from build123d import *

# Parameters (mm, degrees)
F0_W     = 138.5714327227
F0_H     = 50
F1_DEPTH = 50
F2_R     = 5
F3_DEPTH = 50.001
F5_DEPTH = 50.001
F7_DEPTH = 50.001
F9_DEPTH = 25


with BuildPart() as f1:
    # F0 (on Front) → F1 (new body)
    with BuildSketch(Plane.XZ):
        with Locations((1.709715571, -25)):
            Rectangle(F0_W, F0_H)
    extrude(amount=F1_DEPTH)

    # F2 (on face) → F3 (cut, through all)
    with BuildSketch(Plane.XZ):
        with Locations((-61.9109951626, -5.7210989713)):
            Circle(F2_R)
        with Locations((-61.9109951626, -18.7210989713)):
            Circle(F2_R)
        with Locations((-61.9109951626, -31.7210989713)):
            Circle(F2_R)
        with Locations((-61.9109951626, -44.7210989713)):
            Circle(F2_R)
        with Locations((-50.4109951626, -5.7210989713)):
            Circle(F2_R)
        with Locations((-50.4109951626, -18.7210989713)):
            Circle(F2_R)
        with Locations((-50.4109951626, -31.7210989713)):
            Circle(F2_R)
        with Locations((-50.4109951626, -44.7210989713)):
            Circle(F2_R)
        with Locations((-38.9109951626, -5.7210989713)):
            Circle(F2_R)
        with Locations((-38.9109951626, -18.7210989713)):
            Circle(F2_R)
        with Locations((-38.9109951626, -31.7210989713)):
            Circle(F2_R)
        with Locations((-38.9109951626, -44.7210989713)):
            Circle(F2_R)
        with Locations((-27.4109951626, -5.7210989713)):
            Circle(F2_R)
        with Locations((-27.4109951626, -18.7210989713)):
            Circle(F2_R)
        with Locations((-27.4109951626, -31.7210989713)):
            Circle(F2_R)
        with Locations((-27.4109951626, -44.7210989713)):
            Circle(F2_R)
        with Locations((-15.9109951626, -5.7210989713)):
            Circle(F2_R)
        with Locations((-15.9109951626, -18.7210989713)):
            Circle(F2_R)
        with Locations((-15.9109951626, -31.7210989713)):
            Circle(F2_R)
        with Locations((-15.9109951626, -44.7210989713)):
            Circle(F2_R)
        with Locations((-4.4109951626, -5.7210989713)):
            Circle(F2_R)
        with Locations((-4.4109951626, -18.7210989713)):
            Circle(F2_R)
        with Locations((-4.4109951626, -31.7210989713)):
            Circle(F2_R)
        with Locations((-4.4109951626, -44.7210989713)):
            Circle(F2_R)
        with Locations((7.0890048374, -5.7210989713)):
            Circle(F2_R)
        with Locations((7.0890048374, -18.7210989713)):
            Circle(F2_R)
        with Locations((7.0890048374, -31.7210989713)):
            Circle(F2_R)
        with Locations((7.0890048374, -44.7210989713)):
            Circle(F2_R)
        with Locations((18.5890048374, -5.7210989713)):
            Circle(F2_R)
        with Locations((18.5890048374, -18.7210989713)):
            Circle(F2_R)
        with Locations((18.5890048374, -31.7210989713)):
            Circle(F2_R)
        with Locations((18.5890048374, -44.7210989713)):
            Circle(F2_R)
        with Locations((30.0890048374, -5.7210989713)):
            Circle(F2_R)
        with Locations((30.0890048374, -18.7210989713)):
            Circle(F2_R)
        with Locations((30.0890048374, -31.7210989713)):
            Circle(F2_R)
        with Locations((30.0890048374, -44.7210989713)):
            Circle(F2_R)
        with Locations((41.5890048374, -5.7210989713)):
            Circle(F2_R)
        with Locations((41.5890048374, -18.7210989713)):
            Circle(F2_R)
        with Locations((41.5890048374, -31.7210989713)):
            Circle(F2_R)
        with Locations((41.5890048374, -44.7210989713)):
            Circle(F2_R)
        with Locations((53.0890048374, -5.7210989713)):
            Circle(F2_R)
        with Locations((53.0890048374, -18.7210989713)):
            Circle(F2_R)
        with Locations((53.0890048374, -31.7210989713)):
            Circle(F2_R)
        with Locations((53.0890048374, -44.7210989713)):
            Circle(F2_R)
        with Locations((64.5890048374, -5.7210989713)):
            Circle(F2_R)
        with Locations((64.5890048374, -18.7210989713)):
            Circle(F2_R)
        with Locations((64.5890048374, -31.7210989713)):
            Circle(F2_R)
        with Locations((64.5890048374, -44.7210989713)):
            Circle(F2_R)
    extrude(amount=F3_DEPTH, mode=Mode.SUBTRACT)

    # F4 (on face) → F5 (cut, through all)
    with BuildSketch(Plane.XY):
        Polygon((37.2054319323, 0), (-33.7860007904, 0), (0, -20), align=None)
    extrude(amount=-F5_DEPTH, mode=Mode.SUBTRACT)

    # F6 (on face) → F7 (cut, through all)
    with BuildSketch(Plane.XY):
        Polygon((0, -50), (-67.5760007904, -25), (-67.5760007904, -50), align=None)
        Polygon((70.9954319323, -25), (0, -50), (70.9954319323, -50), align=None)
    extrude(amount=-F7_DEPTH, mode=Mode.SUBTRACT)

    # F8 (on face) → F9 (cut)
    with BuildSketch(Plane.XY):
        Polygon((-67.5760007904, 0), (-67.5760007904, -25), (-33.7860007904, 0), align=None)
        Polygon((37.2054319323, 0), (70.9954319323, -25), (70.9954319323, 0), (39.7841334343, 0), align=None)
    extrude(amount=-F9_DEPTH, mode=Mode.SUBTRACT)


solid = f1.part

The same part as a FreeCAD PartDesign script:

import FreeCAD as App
import Part
import Sketcher
from FreeCAD import Vector


def add_polygon(sketch, points):
    """Adds a closed chain of lines whose ends are joined by coincident constraints."""
    first, n = sketch.GeometryCount, len(points)
    for a, b in zip(points, points[1:] + points[:1]):
        sketch.addGeometry(Part.LineSegment(App.Vector(*a, 0), App.Vector(*b, 0)), False)
    for i in range(n):
        sketch.addConstraint(Sketcher.Constraint("Coincident", first + i, 2, first + (i + 1) % n, 1))

doc = App.newDocument("Part")
params = doc.addObject("Spreadsheet::Sheet", "Params")
for row, (alias, value) in enumerate([
    ("sketch1_height", "50 mm"),
    ("pad1_length", "50 mm"),
    ("sketch2_diameter", "10 mm"),
    ("sketch4_height", "25 mm"),
    ("sketch5_height", "25 mm"),
    ("sketch5_width", "33.79 mm"),
    ("pocket4_length", "25 mm"),
], start=1):
    params.set(f"A{row}", alias)
    params.set(f"B{row}", "=" + value)
    params.setAlias(f"B{row}", alias)

body = doc.addObject("PartDesign::Body", "Body")

sketch1 = doc.addObject("Sketcher::SketchObject", "Sketch")
body.addObject(sketch1)
sketch1.AttachmentSupport = (doc.XZ_Plane, [""])
sketch1.MapMode = "FlatFace"
add_polygon(sketch1, [(-68, 0), (-68, -50), (71, -50), (71, 0)])
sketch1.addConstraint(Sketcher.Constraint("Vertical", 0))
sketch1.addConstraint(Sketcher.Constraint("Horizontal", 1))
sketch1.addConstraint(Sketcher.Constraint("Vertical", 2))
sketch1.addConstraint(Sketcher.Constraint("Horizontal", 3))
sketch1.addConstraint(Sketcher.Constraint("PointOnObject", 2, 2, -1))
sketch1.addConstraint(Sketcher.Constraint("DistanceY", 0, 2, 0, 1, 50.0))
sketch1.addConstraint(Sketcher.Constraint("DistanceX", 0, 2, -1, 1, 67.576001))
sketch1.addConstraint(Sketcher.Constraint("DistanceX", 1, 1, 1, 2, 138.571433))
sketch1.setExpression("Constraints[9]", "Params.sketch1_height")
pad1 = doc.addObject("PartDesign::Pad", "Pad")
body.addObject(pad1)
pad1.Profile = sketch1
pad1.setExpression("Length", "Params.pad1_length")

sketch2 = doc.addObject("Sketcher::SketchObject", "Sketch001")
body.addObject(sketch2)
sketch2.AttachmentSupport = (doc.XZ_Plane, [""])
sketch2.MapMode = "FlatFace"
sketch2.addGeometry(Part.Circle(Vector(-62, -6, 0), Vector(0, 0, 1), 5), False)
sketch2.addGeometry(Part.Circle(Vector(-62, -19, 0), Vector(0, 0, 1), 5), False)
sketch2.addGeometry(Part.Circle(Vector(-62, -32, 0), Vector(0, 0, 1), 5), False)
sketch2.addGeometry(Part.Circle(Vector(-62, -45, 0), Vector(0, 0, 1), 5), False)
sketch2.addGeometry(Part.Circle(Vector(-50, -6, 0), Vector(0, 0, 1), 5), False)
sketch2.addGeometry(Part.Circle(Vector(-50, -19, 0), Vector(0, 0, 1), 5), False)
sketch2.addGeometry(Part.Circle(Vector(-50, -32, 0), Vector(0, 0, 1), 5), False)
sketch2.addGeometry(Part.Circle(Vector(-50, -45, 0), Vector(0, 0, 1), 5), False)
sketch2.addGeometry(Part.Circle(Vector(-39, -6, 0), Vector(0, 0, 1), 5), False)
sketch2.addGeometry(Part.Circle(Vector(-39, -19, 0), Vector(0, 0, 1), 5), False)
sketch2.addGeometry(Part.Circle(Vector(-39, -32, 0), Vector(0, 0, 1), 5), False)
sketch2.addGeometry(Part.Circle(Vector(-39, -45, 0), Vector(0, 0, 1), 5), False)
sketch2.addGeometry(Part.Circle(Vector(-27, -6, 0), Vector(0, 0, 1), 5), False)
sketch2.addGeometry(Part.Circle(Vector(-27, -19, 0), Vector(0, 0, 1), 5), False)
sketch2.addGeometry(Part.Circle(Vector(-27, -32, 0), Vector(0, 0, 1), 5), False)
sketch2.addGeometry(Part.Circle(Vector(-27, -45, 0), Vector(0, 0, 1), 5), False)
sketch2.addGeometry(Part.Circle(Vector(-16, -6, 0), Vector(0, 0, 1), 5), False)
sketch2.addGeometry(Part.Circle(Vector(-16, -19, 0), Vector(0, 0, 1), 5), False)
sketch2.addGeometry(Part.Circle(Vector(-16, -32, 0), Vector(0, 0, 1), 5), False)
sketch2.addGeometry(Part.Circle(Vector(-16, -45, 0), Vector(0, 0, 1), 5), False)
sketch2.addGeometry(Part.Circle(Vector(-4, -6, 0), Vector(0, 0, 1), 5), False)
sketch2.addGeometry(Part.Circle(Vector(-4, -19, 0), Vector(0, 0, 1), 5), False)
sketch2.addGeometry(Part.Circle(Vector(-4, -32, 0), Vector(0, 0, 1), 5), False)
sketch2.addGeometry(Part.Circle(Vector(-4, -45, 0), Vector(0, 0, 1), 5), False)
sketch2.addGeometry(Part.Circle(Vector(7, -6, 0), Vector(0, 0, 1), 5), False)
sketch2.addGeometry(Part.Circle(Vector(7, -19, 0), Vector(0, 0, 1), 5), False)
sketch2.addGeometry(Part.Circle(Vector(7, -32, 0), Vector(0, 0, 1), 5), False)
sketch2.addGeometry(Part.Circle(Vector(7, -45, 0), Vector(0, 0, 1), 5), False)
sketch2.addGeometry(Part.Circle(Vector(19, -6, 0), Vector(0, 0, 1), 5), False)
sketch2.addGeometry(Part.Circle(Vector(19, -19, 0), Vector(0, 0, 1), 5), False)
sketch2.addGeometry(Part.Circle(Vector(19, -32, 0), Vector(0, 0, 1), 5), False)
sketch2.addGeometry(Part.Circle(Vector(19, -45, 0), Vector(0, 0, 1), 5), False)
sketch2.addGeometry(Part.Circle(Vector(30, -6, 0), Vector(0, 0, 1), 5), False)
sketch2.addGeometry(Part.Circle(Vector(30, -19, 0), Vector(0, 0, 1), 5), False)
sketch2.addGeometry(Part.Circle(Vector(30, -32, 0), Vector(0, 0, 1), 5), False)
sketch2.addGeometry(Part.Circle(Vector(30, -45, 0), Vector(0, 0, 1), 5), False)
sketch2.addGeometry(Part.Circle(Vector(42, -6, 0), Vector(0, 0, 1), 5), False)
sketch2.addGeometry(Part.Circle(Vector(42, -19, 0), Vector(0, 0, 1), 5), False)
sketch2.addGeometry(Part.Circle(Vector(42, -32, 0), Vector(0, 0, 1), 5), False)
sketch2.addGeometry(Part.Circle(Vector(42, -45, 0), Vector(0, 0, 1), 5), False)
sketch2.addGeometry(Part.Circle(Vector(53, -6, 0), Vector(0, 0, 1), 5), False)
sketch2.addGeometry(Part.Circle(Vector(53, -19, 0), Vector(0, 0, 1), 5), False)
sketch2.addGeometry(Part.Circle(Vector(53, -32, 0), Vector(0, 0, 1), 5), False)
sketch2.addGeometry(Part.Circle(Vector(53, -45, 0), Vector(0, 0, 1), 5), False)
sketch2.addGeometry(Part.Circle(Vector(65, -6, 0), Vector(0, 0, 1), 5), False)
sketch2.addGeometry(Part.Circle(Vector(65, -19, 0), Vector(0, 0, 1), 5), False)
sketch2.addGeometry(Part.Circle(Vector(65, -32, 0), Vector(0, 0, 1), 5), False)
sketch2.addGeometry(Part.Circle(Vector(65, -45, 0), Vector(0, 0, 1), 5), False)
sketch2.addConstraint(Sketcher.Constraint("Equal", 0, 1))
sketch2.addConstraint(Sketcher.Constraint("Equal", 1, 2))
sketch2.addConstraint(Sketcher.Constraint("Equal", 2, 3))
sketch2.addConstraint(Sketcher.Constraint("Equal", 3, 4))
sketch2.addConstraint(Sketcher.Constraint("Equal", 4, 5))
sketch2.addConstraint(Sketcher.Constraint("Equal", 5, 6))
sketch2.addConstraint(Sketcher.Constraint("Equal", 6, 7))
sketch2.addConstraint(Sketcher.Constraint("Equal", 7, 8))
sketch2.addConstraint(Sketcher.Constraint("Equal", 8, 9))
sketch2.addConstraint(Sketcher.Constraint("Equal", 9, 10))
sketch2.addConstraint(Sketcher.Constraint("Equal", 10, 11))
sketch2.addConstraint(Sketcher.Constraint("Equal", 11, 12))
sketch2.addConstraint(Sketcher.Constraint("Equal", 12, 13))
sketch2.addConstraint(Sketcher.Constraint("Equal", 13, 14))
sketch2.addConstraint(Sketcher.Constraint("Equal", 14, 15))
sketch2.addConstraint(Sketcher.Constraint("Equal", 15, 16))
sketch2.addConstraint(Sketcher.Constraint("Equal", 16, 17))
sketch2.addConstraint(Sketcher.Constraint("Equal", 17, 18))
sketch2.addConstraint(Sketcher.Constraint("Equal", 18, 19))
sketch2.addConstraint(Sketcher.Constraint("Equal", 19, 20))
sketch2.addConstraint(Sketcher.Constraint("Equal", 20, 21))
sketch2.addConstraint(Sketcher.Constraint("Equal", 21, 22))
sketch2.addConstraint(Sketcher.Constraint("Equal", 22, 23))
sketch2.addConstraint(Sketcher.Constraint("Equal", 23, 24))
sketch2.addConstraint(Sketcher.Constraint("Equal", 24, 25))
sketch2.addConstraint(Sketcher.Constraint("Equal", 25, 26))
sketch2.addConstraint(Sketcher.Constraint("Equal", 26, 27))
sketch2.addConstraint(Sketcher.Constraint("Equal", 27, 28))
sketch2.addConstraint(Sketcher.Constraint("Equal", 28, 29))
sketch2.addConstraint(Sketcher.Constraint("Equal", 29, 30))
sketch2.addConstraint(Sketcher.Constraint("Equal", 30, 31))
sketch2.addConstraint(Sketcher.Constraint("Equal", 31, 32))
sketch2.addConstraint(Sketcher.Constraint("Equal", 32, 33))
sketch2.addConstraint(Sketcher.Constraint("Equal", 33, 34))
sketch2.addConstraint(Sketcher.Constraint("Equal", 34, 35))
sketch2.addConstraint(Sketcher.Constraint("Equal", 35, 36))
sketch2.addConstraint(Sketcher.Constraint("Equal", 36, 37))
sketch2.addConstraint(Sketcher.Constraint("Equal", 37, 38))
sketch2.addConstraint(Sketcher.Constraint("Equal", 38, 39))
sketch2.addConstraint(Sketcher.Constraint("Equal", 39, 40))
sketch2.addConstraint(Sketcher.Constraint("Equal", 40, 41))
sketch2.addConstraint(Sketcher.Constraint("Equal", 41, 42))
sketch2.addConstraint(Sketcher.Constraint("Equal", 42, 43))
sketch2.addConstraint(Sketcher.Constraint("Equal", 43, 44))
sketch2.addConstraint(Sketcher.Constraint("Equal", 44, 45))
sketch2.addConstraint(Sketcher.Constraint("Equal", 45, 46))
sketch2.addConstraint(Sketcher.Constraint("Equal", 46, 47))
sketch2.addConstraint(Sketcher.Constraint("Horizontal", 0, 3, 4, 3))
sketch2.addConstraint(Sketcher.Constraint("Horizontal", 1, 3, 5, 3))
sketch2.addConstraint(Sketcher.Constraint("Horizontal", 2, 3, 6, 3))
sketch2.addConstraint(Sketcher.Constraint("Horizontal", 3, 3, 7, 3))
sketch2.addConstraint(Sketcher.Constraint("Horizontal", 4, 3, 8, 3))
sketch2.addConstraint(Sketcher.Constraint("Horizontal", 5, 3, 9, 3))
sketch2.addConstraint(Sketcher.Constraint("Horizontal", 6, 3, 10, 3))
sketch2.addConstraint(Sketcher.Constraint("Horizontal", 7, 3, 11, 3))
sketch2.addConstraint(Sketcher.Constraint("Horizontal", 8, 3, 12, 3))
sketch2.addConstraint(Sketcher.Constraint("Horizontal", 9, 3, 13, 3))
sketch2.addConstraint(Sketcher.Constraint("Horizontal", 10, 3, 14, 3))
sketch2.addConstraint(Sketcher.Constraint("Horizontal", 11, 3, 15, 3))
sketch2.addConstraint(Sketcher.Constraint("Horizontal", 12, 3, 16, 3))
sketch2.addConstraint(Sketcher.Constraint("Horizontal", 13, 3, 17, 3))
sketch2.addConstraint(Sketcher.Constraint("Horizontal", 14, 3, 18, 3))
sketch2.addConstraint(Sketcher.Constraint("Horizontal", 15, 3, 19, 3))
sketch2.addConstraint(Sketcher.Constraint("Horizontal", 16, 3, 20, 3))
sketch2.addConstraint(Sketcher.Constraint("Horizontal", 17, 3, 21, 3))
sketch2.addConstraint(Sketcher.Constraint("Horizontal", 18, 3, 22, 3))
sketch2.addConstraint(Sketcher.Constraint("Horizontal", 19, 3, 23, 3))
sketch2.addConstraint(Sketcher.Constraint("Horizontal", 20, 3, 24, 3))
sketch2.addConstraint(Sketcher.Constraint("Horizontal", 21, 3, 25, 3))
sketch2.addConstraint(Sketcher.Constraint("Horizontal", 22, 3, 26, 3))
sketch2.addConstraint(Sketcher.Constraint("Horizontal", 23, 3, 27, 3))
sketch2.addConstraint(Sketcher.Constraint("Horizontal", 24, 3, 28, 3))
sketch2.addConstraint(Sketcher.Constraint("Horizontal", 25, 3, 29, 3))
sketch2.addConstraint(Sketcher.Constraint("Horizontal", 26, 3, 30, 3))
sketch2.addConstraint(Sketcher.Constraint("Horizontal", 27, 3, 31, 3))
sketch2.addConstraint(Sketcher.Constraint("Horizontal", 28, 3, 32, 3))
sketch2.addConstraint(Sketcher.Constraint("Horizontal", 29, 3, 33, 3))
sketch2.addConstraint(Sketcher.Constraint("Horizontal", 30, 3, 34, 3))
sketch2.addConstraint(Sketcher.Constraint("Horizontal", 31, 3, 35, 3))
sketch2.addConstraint(Sketcher.Constraint("Horizontal", 32, 3, 36, 3))
sketch2.addConstraint(Sketcher.Constraint("Horizontal", 33, 3, 37, 3))
sketch2.addConstraint(Sketcher.Constraint("Horizontal", 34, 3, 38, 3))
sketch2.addConstraint(Sketcher.Constraint("Horizontal", 35, 3, 39, 3))
sketch2.addConstraint(Sketcher.Constraint("Horizontal", 36, 3, 40, 3))
sketch2.addConstraint(Sketcher.Constraint("Horizontal", 37, 3, 41, 3))
sketch2.addConstraint(Sketcher.Constraint("Horizontal", 38, 3, 42, 3))
sketch2.addConstraint(Sketcher.Constraint("Horizontal", 39, 3, 43, 3))
sketch2.addConstraint(Sketcher.Constraint("Horizontal", 40, 3, 44, 3))
sketch2.addConstraint(Sketcher.Constraint("Horizontal", 41, 3, 45, 3))
sketch2.addConstraint(Sketcher.Constraint("Horizontal", 42, 3, 46, 3))
sketch2.addConstraint(Sketcher.Constraint("Horizontal", 43, 3, 47, 3))
sketch2.addConstraint(Sketcher.Constraint("Vertical", 0, 3, 1, 3))
sketch2.addConstraint(Sketcher.Constraint("Vertical", 1, 3, 2, 3))
sketch2.addConstraint(Sketcher.Constraint("Vertical", 2, 3, 3, 3))
sketch2.addConstraint(Sketcher.Constraint("Vertical", 4, 3, 5, 3))
sketch2.addConstraint(Sketcher.Constraint("Vertical", 5, 3, 6, 3))
sketch2.addConstraint(Sketcher.Constraint("Vertical", 6, 3, 7, 3))
sketch2.addConstraint(Sketcher.Constraint("Vertical", 8, 3, 9, 3))
sketch2.addConstraint(Sketcher.Constraint("Vertical", 9, 3, 10, 3))
sketch2.addConstraint(Sketcher.Constraint("Vertical", 10, 3, 11, 3))
sketch2.addConstraint(Sketcher.Constraint("Vertical", 12, 3, 13, 3))
sketch2.addConstraint(Sketcher.Constraint("Vertical", 13, 3, 14, 3))
sketch2.addConstraint(Sketcher.Constraint("Vertical", 14, 3, 15, 3))
sketch2.addConstraint(Sketcher.Constraint("Vertical", 16, 3, 17, 3))
sketch2.addConstraint(Sketcher.Constraint("Vertical", 17, 3, 18, 3))
sketch2.addConstraint(Sketcher.Constraint("Vertical", 18, 3, 19, 3))
sketch2.addConstraint(Sketcher.Constraint("Vertical", 20, 3, 21, 3))
sketch2.addConstraint(Sketcher.Constraint("Vertical", 21, 3, 22, 3))
sketch2.addConstraint(Sketcher.Constraint("Vertical", 22, 3, 23, 3))
sketch2.addConstraint(Sketcher.Constraint("Vertical", 24, 3, 25, 3))
sketch2.addConstraint(Sketcher.Constraint("Vertical", 25, 3, 26, 3))
sketch2.addConstraint(Sketcher.Constraint("Vertical", 26, 3, 27, 3))
sketch2.addConstraint(Sketcher.Constraint("Vertical", 28, 3, 29, 3))
sketch2.addConstraint(Sketcher.Constraint("Vertical", 29, 3, 30, 3))
sketch2.addConstraint(Sketcher.Constraint("Vertical", 30, 3, 31, 3))
sketch2.addConstraint(Sketcher.Constraint("Vertical", 32, 3, 33, 3))
sketch2.addConstraint(Sketcher.Constraint("Vertical", 33, 3, 34, 3))
sketch2.addConstraint(Sketcher.Constraint("Vertical", 34, 3, 35, 3))
sketch2.addConstraint(Sketcher.Constraint("Vertical", 36, 3, 37, 3))
sketch2.addConstraint(Sketcher.Constraint("Vertical", 37, 3, 38, 3))
sketch2.addConstraint(Sketcher.Constraint("Vertical", 38, 3, 39, 3))
sketch2.addConstraint(Sketcher.Constraint("Vertical", 40, 3, 41, 3))
sketch2.addConstraint(Sketcher.Constraint("Vertical", 41, 3, 42, 3))
sketch2.addConstraint(Sketcher.Constraint("Vertical", 42, 3, 43, 3))
sketch2.addConstraint(Sketcher.Constraint("Vertical", 44, 3, 45, 3))
sketch2.addConstraint(Sketcher.Constraint("Vertical", 45, 3, 46, 3))
sketch2.addConstraint(Sketcher.Constraint("Vertical", 46, 3, 47, 3))
sketch2.addConstraint(Sketcher.Constraint("Diameter", 0, 10.0))
sketch2.addConstraint(Sketcher.Constraint("DistanceY", 1, 3, 0, 3, 13.0))
sketch2.addConstraint(Sketcher.Constraint("DistanceY", 2, 3, 1, 3, 13.0))
sketch2.addConstraint(Sketcher.Constraint("DistanceY", 3, 3, 2, 3, 13.0))
sketch2.addConstraint(Sketcher.Constraint("DistanceX", 0, 3, 8, 3, 23.0))
sketch2.addConstraint(Sketcher.Constraint("DistanceX", 4, 3, 12, 3, 23.0))
sketch2.addConstraint(Sketcher.Constraint("DistanceX", 8, 3, 16, 3, 23.0))
sketch2.addConstraint(Sketcher.Constraint("DistanceX", 12, 3, 20, 3, 23.0))
sketch2.addConstraint(Sketcher.Constraint("DistanceX", 16, 3, 24, 3, 23.0))
sketch2.addConstraint(Sketcher.Constraint("DistanceX", 20, 3, 28, 3, 23.0))
sketch2.addConstraint(Sketcher.Constraint("DistanceX", 24, 3, 32, 3, 23.0))
sketch2.addConstraint(Sketcher.Constraint("DistanceX", 28, 3, 36, 3, 23.0))
sketch2.addConstraint(Sketcher.Constraint("DistanceX", 32, 3, 40, 3, 23.0))
sketch2.addConstraint(Sketcher.Constraint("DistanceX", 36, 3, 44, 3, 23.0))
sketch2.addConstraint(Sketcher.Constraint("DistanceX", 0, 3, 4, 3, 11.5))
sketch2.addConstraint(Sketcher.Constraint("DistanceY", 0, 3, -1, 1, 5.721099))
sketch2.addConstraint(Sketcher.Constraint("DistanceX", 0, 3, -1, 1, 61.910995))
sketch2.setExpression("Constraints[127]", "Params.sketch2_diameter")
pocket1 = doc.addObject("PartDesign::Pocket", "Pocket")
body.addObject(pocket1)
pocket1.Profile = sketch2
pocket1.Type = "ThroughAll"
pocket1.Reversed = True

sketch3 = doc.addObject("Sketcher::SketchObject", "Sketch002")
body.addObject(sketch3)
sketch3.AttachmentSupport = (doc.XY_Plane, [""])
sketch3.MapMode = "FlatFace"
add_polygon(sketch3, [(37, 0), (-34, 0), (0, -20)])
sketch3.addConstraint(Sketcher.Constraint("Horizontal", 0))
sketch3.addConstraint(Sketcher.Constraint("PointOnObject", 0, 2, -1))
sketch3.addConstraint(Sketcher.Constraint("PointOnObject", 1, 2, -2))
sketch3.addConstraint(Sketcher.Constraint("DistanceY", 1, 2, -1, 1, 20.0))
sketch3.addConstraint(Sketcher.Constraint("DistanceX", 0, 2, -1, 1, 33.786001))
sketch3.addConstraint(Sketcher.Constraint("DistanceX", 0, 2, 0, 1, 70.991433))
pocket2 = doc.addObject("PartDesign::Pocket", "Pocket001")
body.addObject(pocket2)
pocket2.Profile = sketch3
pocket2.Type = "ThroughAll"

sketch4 = doc.addObject("Sketcher::SketchObject", "Sketch003")
body.addObject(sketch4)
sketch4.AttachmentSupport = (doc.XY_Plane, [""])
sketch4.MapMode = "FlatFace"
add_polygon(sketch4, [(0, -50), (-68, -25), (-68, -50)])
add_polygon(sketch4, [(71, -25), (0, -50), (71, -50)])
sketch4.addConstraint(Sketcher.Constraint("Vertical", 1))
sketch4.addConstraint(Sketcher.Constraint("Horizontal", 2))
sketch4.addConstraint(Sketcher.Constraint("Horizontal", 4))
sketch4.addConstraint(Sketcher.Constraint("Vertical", 5))
sketch4.addConstraint(Sketcher.Constraint("Coincident", 3, 2, 2, 2))
sketch4.addConstraint(Sketcher.Constraint("PointOnObject", 2, 2, -2))
sketch4.addConstraint(Sketcher.Constraint("Horizontal", 0, 2, 5, 2))
sketch4.addConstraint(Sketcher.Constraint("DistanceY", 1, 2, 1, 1, 25.0))
sketch4.addConstraint(Sketcher.Constraint("DistanceY", 0, 2, -1, 1, 25.0))
sketch4.addConstraint(Sketcher.Constraint("DistanceX", 2, 1, 2, 2, 67.576001))
sketch4.addConstraint(Sketcher.Constraint("DistanceX", 4, 1, 4, 2, 70.995432))
sketch4.setExpression("Constraints[13]", "Params.sketch4_height")
pocket3 = doc.addObject("PartDesign::Pocket", "Pocket002")
body.addObject(pocket3)
pocket3.Profile = sketch4
pocket3.Type = "ThroughAll"

sketch5 = doc.addObject("Sketcher::SketchObject", "Sketch004")
body.addObject(sketch5)
sketch5.AttachmentSupport = (doc.XY_Plane, [""])
sketch5.MapMode = "FlatFace"
add_polygon(sketch5, [(-68, 0), (-68, -25), (-34, 0)])
add_polygon(sketch5, [(37, 0), (71, -25), (71, 0)])
sketch5.addConstraint(Sketcher.Constraint("Vertical", 0))
sketch5.addConstraint(Sketcher.Constraint("Horizontal", 2))
sketch5.addConstraint(Sketcher.Constraint("Vertical", 4))
sketch5.addConstraint(Sketcher.Constraint("Horizontal", 5))
sketch5.addConstraint(Sketcher.Constraint("PointOnObject", 1, 2, -1))
sketch5.addConstraint(Sketcher.Constraint("PointOnObject", 4, 2, -1))
sketch5.addConstraint(Sketcher.Constraint("Horizontal", 0, 2, 3, 2))
sketch5.addConstraint(Sketcher.Constraint("Equal", 2, 5))
sketch5.addConstraint(Sketcher.Constraint("DistanceY", 0, 2, 0, 1, 25.0))
sketch5.addConstraint(Sketcher.Constraint("DistanceX", 2, 2, 2, 1, 33.79))
sketch5.addConstraint(Sketcher.Constraint("DistanceX", 0, 2, -1, 1, 67.576001))
sketch5.addConstraint(Sketcher.Constraint("DistanceX", -1, 1, 3, 2, 70.995432))
sketch5.setExpression("Constraints[14]", "Params.sketch5_height")
sketch5.setExpression("Constraints[15]", "Params.sketch5_width")
pocket4 = doc.addObject("PartDesign::Pocket", "Pocket003")
body.addObject(pocket4)
pocket4.Profile = sketch5
pocket4.setExpression("Length", "Params.pocket4_length")

doc.recompute()
